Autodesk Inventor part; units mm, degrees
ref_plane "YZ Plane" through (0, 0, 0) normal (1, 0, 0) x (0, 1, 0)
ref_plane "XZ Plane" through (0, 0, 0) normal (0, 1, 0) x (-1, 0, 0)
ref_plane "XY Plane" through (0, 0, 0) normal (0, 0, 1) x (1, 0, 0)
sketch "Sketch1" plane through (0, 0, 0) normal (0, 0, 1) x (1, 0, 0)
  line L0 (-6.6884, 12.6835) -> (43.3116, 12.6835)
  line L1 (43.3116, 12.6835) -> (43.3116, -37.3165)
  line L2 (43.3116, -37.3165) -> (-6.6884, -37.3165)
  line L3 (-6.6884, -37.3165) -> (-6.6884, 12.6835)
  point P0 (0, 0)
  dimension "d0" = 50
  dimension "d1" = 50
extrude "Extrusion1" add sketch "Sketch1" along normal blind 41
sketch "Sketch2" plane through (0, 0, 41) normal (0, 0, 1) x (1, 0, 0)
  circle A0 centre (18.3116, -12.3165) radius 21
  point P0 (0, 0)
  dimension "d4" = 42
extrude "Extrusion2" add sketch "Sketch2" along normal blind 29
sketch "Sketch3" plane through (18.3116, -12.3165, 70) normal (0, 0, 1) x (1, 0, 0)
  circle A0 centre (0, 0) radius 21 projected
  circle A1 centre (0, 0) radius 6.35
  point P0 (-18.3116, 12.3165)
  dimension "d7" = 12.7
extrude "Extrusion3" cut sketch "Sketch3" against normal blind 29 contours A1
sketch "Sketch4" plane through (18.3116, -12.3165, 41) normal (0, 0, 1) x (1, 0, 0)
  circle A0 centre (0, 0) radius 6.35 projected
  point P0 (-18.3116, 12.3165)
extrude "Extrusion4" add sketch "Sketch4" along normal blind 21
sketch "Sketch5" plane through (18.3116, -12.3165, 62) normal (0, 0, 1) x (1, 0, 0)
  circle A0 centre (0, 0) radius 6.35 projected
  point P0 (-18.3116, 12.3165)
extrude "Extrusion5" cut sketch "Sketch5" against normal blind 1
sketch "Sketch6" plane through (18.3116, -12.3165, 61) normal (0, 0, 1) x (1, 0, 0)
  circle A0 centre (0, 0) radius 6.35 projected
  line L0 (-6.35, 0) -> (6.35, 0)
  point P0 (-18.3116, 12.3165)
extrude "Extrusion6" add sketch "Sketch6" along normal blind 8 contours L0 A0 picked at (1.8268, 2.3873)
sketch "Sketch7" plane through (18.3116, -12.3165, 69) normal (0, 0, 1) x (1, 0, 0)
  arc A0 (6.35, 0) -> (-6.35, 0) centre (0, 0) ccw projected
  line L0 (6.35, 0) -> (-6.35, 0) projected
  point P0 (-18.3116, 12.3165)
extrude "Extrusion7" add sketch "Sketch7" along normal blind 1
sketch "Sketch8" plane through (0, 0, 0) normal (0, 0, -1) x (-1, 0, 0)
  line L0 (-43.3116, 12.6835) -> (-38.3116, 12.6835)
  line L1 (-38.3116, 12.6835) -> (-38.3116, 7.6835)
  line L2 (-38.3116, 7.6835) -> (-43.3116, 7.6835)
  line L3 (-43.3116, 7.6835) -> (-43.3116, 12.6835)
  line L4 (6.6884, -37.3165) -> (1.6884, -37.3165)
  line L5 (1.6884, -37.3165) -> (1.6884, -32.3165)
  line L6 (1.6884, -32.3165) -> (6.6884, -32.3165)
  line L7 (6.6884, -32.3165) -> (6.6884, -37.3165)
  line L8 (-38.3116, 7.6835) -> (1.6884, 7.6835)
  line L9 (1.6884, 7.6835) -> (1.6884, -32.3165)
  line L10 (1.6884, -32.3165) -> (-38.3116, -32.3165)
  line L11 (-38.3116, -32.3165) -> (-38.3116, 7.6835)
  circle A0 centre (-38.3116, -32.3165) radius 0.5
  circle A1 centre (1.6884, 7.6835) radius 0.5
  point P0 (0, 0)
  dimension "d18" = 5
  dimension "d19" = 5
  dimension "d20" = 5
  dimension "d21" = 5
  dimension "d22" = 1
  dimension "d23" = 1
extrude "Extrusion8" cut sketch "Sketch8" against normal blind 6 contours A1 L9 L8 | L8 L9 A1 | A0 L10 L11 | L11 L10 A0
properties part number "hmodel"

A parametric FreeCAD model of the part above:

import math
import FreeCAD as App
import Part
import Sketcher
Q = App.Units.Quantity


def add_polygon(sketch, points):
    """Adds a closed chain of lines whose ends are joined by coincident constraints."""
    first, n = sketch.GeometryCount, len(points)
    for a, b in zip(points, points[1:] + points[:1]):
        sketch.addGeometry(Part.LineSegment(App.Vector(*a, 0), App.Vector(*b, 0)), False)
    for i in range(n):
        sketch.addConstraint(Sketcher.Constraint("Coincident", first + i, 2, first + (i + 1) % n, 1))

doc = App.newDocument("Part")
body = doc.addObject("PartDesign::Body", "Body")

# Sketch on XY plane
sketch1 = body.newObject("Sketcher::SketchObject", "Sketch")
sketch1.AttachmentSupport = (doc.getObject("XY_Plane"), [""])
sketch1.MapMode = "FlatFace"
add_polygon(sketch1, [(43, 13), (-7, 13), (-7, -37), (43, -37)])  # lines 0-3
sketch1.addConstraint([
    Sketcher.Constraint("Horizontal", 0),
    Sketcher.Constraint("Vertical", 1),
    Sketcher.Constraint("Horizontal", 2),
    Sketcher.Constraint("Vertical", 3),
    Sketcher.Constraint("Equal", 2, 1),
    Sketcher.Constraint("DistanceX", 0, 2, 0, 1, Q("50 mm")),
    Sketcher.Constraint("DistanceX", 0, 2, -1, 1, Q("6.6884 mm")),
    Sketcher.Constraint("DistanceY", -1, 1, 0, 2, Q("12.6835 mm")),
])
pad1 = body.newObject("PartDesign::Pad", "Pad")
pad1.Profile = sketch1
pad1.Length = 41

# Sketch on XY plane
sketch2 = body.newObject("Sketcher::SketchObject", "Sketch001")
sketch2.AttachmentSupport = (doc.getObject("XY_Plane"), [""])
sketch2.MapMode = "FlatFace"
sketch2.AttachmentOffset = App.Placement(App.Vector(0, 0, 41), App.Rotation())
sketch2.addGeometry(Part.Circle(App.Vector(18, -12, 0), App.Vector(0, 0, 1), 21), False)
sketch2.addConstraint([
    Sketcher.Constraint("Diameter", 0, Q("42 mm")),
    Sketcher.Constraint("DistanceX", -1, 1, 0, 3, Q("18.3116 mm")),
    Sketcher.Constraint("DistanceY", 0, 3, -1, 1, Q("12.3165 mm")),
])
pad2 = body.newObject("PartDesign::Pad", "Pad001")
pad2.Profile = sketch2
pad2.Length = 29

# Sketch on XY plane
sketch3 = body.newObject("Sketcher::SketchObject", "Sketch002")
sketch3.AttachmentSupport = (doc.getObject("XY_Plane"), [""])
sketch3.MapMode = "FlatFace"
sketch3.AttachmentOffset = App.Placement(App.Vector(0, 0, 70), App.Rotation())
sketch3.addGeometry(Part.Circle(App.Vector(18, -12, 0), App.Vector(0, 0, 1), 6), False)
sketch3.addConstraint([
    Sketcher.Constraint("Diameter", 0, Q("12.7 mm")),
    Sketcher.Constraint("DistanceX", -1, 1, 0, 3, Q("18.3116 mm")),
    Sketcher.Constraint("DistanceY", 0, 3, -1, 1, Q("12.3165 mm")),
])
pocket1 = body.newObject("PartDesign::Pocket", "Pocket")
pocket1.Profile = sketch3
pocket1.Length = 29

# Sketch on XY plane
sketch4 = body.newObject("Sketcher::SketchObject", "Sketch003")
sketch4.AttachmentSupport = (doc.getObject("XY_Plane"), [""])
sketch4.MapMode = "FlatFace"
sketch4.AttachmentOffset = App.Placement(App.Vector(0, 0, 41), App.Rotation())
sketch4.addGeometry(Part.Circle(App.Vector(18, -12, 0), App.Vector(0, 0, 1), 6), False)
sketch4.addConstraint([
    Sketcher.Constraint("Diameter", 0, Q("12.7 mm")),
    Sketcher.Constraint("DistanceX", -1, 1, 0, 3, Q("18.3116 mm")),
    Sketcher.Constraint("DistanceY", 0, 3, -1, 1, Q("12.3165 mm")),
])
pad3 = body.newObject("PartDesign::Pad", "Pad002")
pad3.Profile = sketch4
pad3.Length = 21

# Sketch on XY plane
sketch5 = body.newObject("Sketcher::SketchObject", "Sketch004")
sketch5.AttachmentSupport = (doc.getObject("XY_Plane"), [""])
sketch5.MapMode = "FlatFace"
sketch5.AttachmentOffset = App.Placement(App.Vector(0, 0, 62), App.Rotation())
sketch5.addGeometry(Part.Circle(App.Vector(18, -12, 0), App.Vector(0, 0, 1), 6), False)
sketch5.addConstraint([
    Sketcher.Constraint("Diameter", 0, Q("12.7 mm")),
    Sketcher.Constraint("DistanceX", -1, 1, 0, 3, Q("18.3116 mm")),
    Sketcher.Constraint("DistanceY", 0, 3, -1, 1, Q("12.3165 mm")),
])
pocket2 = body.newObject("PartDesign::Pocket", "Pocket001")
pocket2.Profile = sketch5
pocket2.Length = 1

# Sketch on XY plane
sketch6 = body.newObject("Sketcher::SketchObject", "Sketch005")
sketch6.AttachmentSupport = (doc.getObject("XY_Plane"), [""])
sketch6.MapMode = "FlatFace"
sketch6.AttachmentOffset = App.Placement(App.Vector(0, 0, 61), App.Rotation())
sketch6.addGeometry([
    Part.LineSegment(App.Vector(12, -12, 0), App.Vector(25, -12, 0)),
    Part.ArcOfCircle(Part.Circle(App.Vector(18, -12, 0), App.Vector(0, 0, 1), 6), math.radians(0), math.radians(180)),
], False)
sketch6.addConstraint([
    Sketcher.Constraint("Coincident", 0, 1, 1, 2),
    Sketcher.Constraint("Coincident", 1, 1, 0, 2),
    Sketcher.Constraint("Horizontal", 0),
    Sketcher.Constraint("Horizontal", 1, 3, 0, 1),
    Sketcher.Constraint("Radius", 1, Q("6.35 mm")),
    Sketcher.Constraint("DistanceX", -1, 1, 1, 3, Q("18.3116 mm")),
    Sketcher.Constraint("DistanceY", 1, 3, -1, 1, Q("12.3165 mm")),
])
pad4 = body.newObject("PartDesign::Pad", "Pad003")
pad4.Profile = sketch6
pad4.Length = 8

# Sketch on XY plane
sketch7 = body.newObject("Sketcher::SketchObject", "Sketch006")
sketch7.AttachmentSupport = (doc.getObject("XY_Plane"), [""])
sketch7.MapMode = "FlatFace"
sketch7.AttachmentOffset = App.Placement(App.Vector(0, 0, 69), App.Rotation())
sketch7.addGeometry([
    Part.LineSegment(App.Vector(12, -12, 0), App.Vector(25, -12, 0)),
    Part.ArcOfCircle(Part.Circle(App.Vector(18, -12, 0), App.Vector(0, 0, 1), 6), math.radians(0), math.radians(180)),
], False)
sketch7.addConstraint([
    Sketcher.Constraint("Coincident", 0, 1, 1, 2),
    Sketcher.Constraint("Coincident", 1, 1, 0, 2),
    Sketcher.Constraint("Horizontal", 0),
    Sketcher.Constraint("Horizontal", 1, 3, 0, 1),
    Sketcher.Constraint("Radius", 1, Q("6.35 mm")),
    Sketcher.Constraint("DistanceX", -1, 1, 1, 3, Q("18.3116 mm")),
    Sketcher.Constraint("DistanceY", 1, 3, -1, 1, Q("12.3165 mm")),
])
pad5 = body.newObject("PartDesign::Pad", "Pad004")
pad5.Profile = sketch7
pad5.Length = 1

# Sketch on XY plane
sketch8 = body.newObject("Sketcher::SketchObject", "Sketch007")
sketch8.AttachmentSupport = (doc.getObject("XY_Plane"), [""])
sketch8.MapMode = "FlatFace"
sketch8.addGeometry([
    Part.Circle(App.Vector(-1.7, 7.7, 0), App.Vector(0, 0, 1), 0.5),
    Part.Circle(App.Vector(38.3, -32.3, 0), App.Vector(0, 0, 1), 0.5),
], False)
sketch8.addConstraint([
    Sketcher.Constraint("Equal", 0, 1),
    Sketcher.Constraint("Diameter", 0, Q("1 mm")),
    Sketcher.Constraint("DistanceX", 0, 3, 1, 3, Q("40 mm")),
    Sketcher.Constraint("DistanceY", 1, 3, 0, 3, Q("40 mm")),
    Sketcher.Constraint("DistanceX", 0, 3, -1, 1, Q("1.6884 mm")),
    Sketcher.Constraint("DistanceY", -1, 1, 0, 3, Q("7.6835 mm")),
])
pocket3 = body.newObject("PartDesign::Pocket", "Pocket002")
pocket3.Profile = sketch8
pocket3.Length = 6
pocket3.Reversed = True

doc.recompute()
